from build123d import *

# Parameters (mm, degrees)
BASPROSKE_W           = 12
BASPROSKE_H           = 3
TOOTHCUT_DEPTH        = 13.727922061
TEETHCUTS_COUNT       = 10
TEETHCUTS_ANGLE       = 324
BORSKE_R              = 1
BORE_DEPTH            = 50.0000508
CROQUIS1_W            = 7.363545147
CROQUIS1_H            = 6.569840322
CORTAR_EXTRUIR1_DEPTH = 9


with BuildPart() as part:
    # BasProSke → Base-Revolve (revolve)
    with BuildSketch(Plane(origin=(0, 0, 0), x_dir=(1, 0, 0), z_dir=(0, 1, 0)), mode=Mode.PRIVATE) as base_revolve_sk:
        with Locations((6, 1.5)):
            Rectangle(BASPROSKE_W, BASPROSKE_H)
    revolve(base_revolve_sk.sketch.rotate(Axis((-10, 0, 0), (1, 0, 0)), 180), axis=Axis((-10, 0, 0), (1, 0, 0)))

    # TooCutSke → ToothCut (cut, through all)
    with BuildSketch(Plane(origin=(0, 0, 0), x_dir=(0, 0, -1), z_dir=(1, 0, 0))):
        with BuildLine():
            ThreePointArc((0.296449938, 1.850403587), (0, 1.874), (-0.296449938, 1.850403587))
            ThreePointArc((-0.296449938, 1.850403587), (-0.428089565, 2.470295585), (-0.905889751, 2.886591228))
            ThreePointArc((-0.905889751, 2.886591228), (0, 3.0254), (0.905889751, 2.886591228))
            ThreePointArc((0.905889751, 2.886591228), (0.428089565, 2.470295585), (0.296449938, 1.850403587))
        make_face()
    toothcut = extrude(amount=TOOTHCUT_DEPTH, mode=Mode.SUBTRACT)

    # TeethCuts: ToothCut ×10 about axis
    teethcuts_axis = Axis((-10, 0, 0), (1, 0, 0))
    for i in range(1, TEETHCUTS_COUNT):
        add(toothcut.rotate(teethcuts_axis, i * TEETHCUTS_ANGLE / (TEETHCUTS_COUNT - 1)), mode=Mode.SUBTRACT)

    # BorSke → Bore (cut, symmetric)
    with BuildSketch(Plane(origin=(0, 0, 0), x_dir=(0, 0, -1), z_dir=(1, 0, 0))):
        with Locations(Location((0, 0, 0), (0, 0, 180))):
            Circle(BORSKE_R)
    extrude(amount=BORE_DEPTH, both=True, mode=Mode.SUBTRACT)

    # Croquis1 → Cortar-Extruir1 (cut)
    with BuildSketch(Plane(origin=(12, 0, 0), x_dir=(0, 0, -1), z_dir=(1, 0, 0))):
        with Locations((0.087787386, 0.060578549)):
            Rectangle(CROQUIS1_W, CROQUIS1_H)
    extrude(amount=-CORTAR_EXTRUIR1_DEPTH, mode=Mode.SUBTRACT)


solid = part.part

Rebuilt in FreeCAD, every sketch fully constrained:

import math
import FreeCAD as App
import Part
import Sketcher
from FreeCAD import Vector


def add_polygon(sketch, points):
    """Adds a closed chain of lines whose ends are joined by coincident constraints."""
    first, n = sketch.GeometryCount, len(points)
    for a, b in zip(points, points[1:] + points[:1]):
        sketch.addGeometry(Part.LineSegment(App.Vector(*a, 0), App.Vector(*b, 0)), False)
    for i in range(n):
        sketch.addConstraint(Sketcher.Constraint("Coincident", first + i, 2, first + (i + 1) % n, 1))

doc = App.newDocument("Part")
body = doc.addObject("PartDesign::Body", "Body")

sketch1 = body.newObject("Sketcher::SketchObject", "Sketch")
sketch1.AttachmentSupport = (doc.getObject("XZ_Plane"), [""])
sketch1.MapMode = "FlatFace"
add_polygon(sketch1, [(0, -3), (0, 0), (12, 0), (12, -3)])
sketch1.addConstraint(Sketcher.Constraint("Vertical", 0))
sketch1.addConstraint(Sketcher.Constraint("Horizontal", 1))
sketch1.addConstraint(Sketcher.Constraint("Vertical", 2))
sketch1.addConstraint(Sketcher.Constraint("Horizontal", 3))
sketch1.addConstraint(Sketcher.Constraint("Coincident", 0, 2, -1, 1))
sketch1.addConstraint(Sketcher.Constraint("DistanceX", 1, 1, 1, 2, 12.0))
sketch1.addConstraint(Sketcher.Constraint("DistanceY", 0, 1, 0, 2, 3.0))
revolution = body.newObject("PartDesign::Revolution", "Revolution")
revolution.Profile = sketch1
revolution.ReferenceAxis = (sketch1, ["H_Axis"])
revolution.Angle = 360

sketch2 = body.newObject("Sketcher::SketchObject", "Sketch001")
sketch2.AttachmentSupport = (doc.getObject("YZ_Plane"), [""])
sketch2.MapMode = "FlatFace"
sketch2.addGeometry(Part.ArcOfCircle(Part.Circle(Vector(0, 0, 0), Vector(0, 0, 1), 1.874), math.radians(-9.101911), math.radians(9.101911)), False)
sketch2.addGeometry(Part.ArcOfCircle(Part.Circle(Vector(1.963326, -1.290054, 0), Vector(0, 0, 1), 1), math.radians(22.591848), math.radians(96.483827)), False)
sketch2.addGeometry(Part.ArcOfCircle(Part.Circle(Vector(0, 0, 0), Vector(0, 0, 1), 3.0254), math.radians(-17.423256), math.radians(17.423256)), False)
sketch2.addGeometry(Part.ArcOfCircle(Part.Circle(Vector(1.963326, 1.290054, 0), Vector(0, 0, 1), 1), math.radians(-96.483827), math.radians(-22.591848)), False)
sketch2.addConstraint(Sketcher.Constraint("Coincident", 0, 1, 1, 2))
sketch2.addConstraint(Sketcher.Constraint("Coincident", 1, 1, 2, 1))
sketch2.addConstraint(Sketcher.Constraint("Coincident", 2, 2, 3, 2))
sketch2.addConstraint(Sketcher.Constraint("Coincident", 3, 1, 0, 2))
sketch2.addConstraint(Sketcher.Constraint("Coincident", 0, 3, -1, 1))
sketch2.addConstraint(Sketcher.Constraint("Coincident", 2, 3, -1, 1))
sketch2.addConstraint(Sketcher.Constraint("Equal", 1, 3))
sketch2.addConstraint(Sketcher.Constraint("Symmetric", 1, 3, 3, 3, -1))
sketch2.addConstraint(Sketcher.Constraint("Radius", 1, 1.0))
sketch2.addConstraint(Sketcher.Constraint("Radius", 0, 1.874))
sketch2.addConstraint(Sketcher.Constraint("Radius", 2, 3.0254))
sketch2.addConstraint(Sketcher.Constraint("DistanceY", 0, 1, 3, 1, 0.5929))
sketch2.addConstraint(Sketcher.Constraint("DistanceX", -1, 1, 1, 1, 2.886591))
pocket1 = body.newObject("PartDesign::Pocket", "Pocket")
pocket1.Profile = sketch2
pocket1.Type = "ThroughAll"
pocket1.Reversed = True
doc.recompute()

polarpattern = body.newObject("PartDesign::PolarPattern", "PolarPattern")
polarpattern.Originals = [pocket1]
polarpattern.Axis = (doc.getObject("X_Axis"), [""])
polarpattern.Angle = 360
polarpattern.Occurrences = 10
body.Tip = polarpattern

sketch3 = body.newObject("Sketcher::SketchObject", "Sketch002")
sketch3.AttachmentSupport = (doc.getObject("YZ_Plane"), [""])
sketch3.MapMode = "FlatFace"
sketch3.addGeometry(Part.Circle(Vector(0, 0, 0), Vector(0, 0, 1), 1), False)
sketch3.addConstraint(Sketcher.Constraint("Coincident", 0, 3, -1, 1))
sketch3.addConstraint(Sketcher.Constraint("Diameter", 0, 2.0))
pocket2 = body.newObject("PartDesign::Pocket", "Pocket001")
pocket2.Profile = sketch3
pocket2.Length = 100.000102
pocket2.Midplane = True

sketch4 = body.newObject("Sketcher::SketchObject", "Sketch003")
sketch4.AttachmentSupport = (doc.getObject("YZ_Plane"), [""])
sketch4.MapMode = "FlatFace"
sketch4.AttachmentOffset = App.Placement(Vector(0, 0, 12), App.Rotation())
add_polygon(sketch4, [(3.345499, 3.593985), (-3.224342, 3.593985), (-3.224342, -3.76956), (3.345499, -3.76956)])
sketch4.addConstraint(Sketcher.Constraint("Horizontal", 0))
sketch4.addConstraint(Sketcher.Constraint("Vertical", 1))
sketch4.addConstraint(Sketcher.Constraint("Horizontal", 2))
sketch4.addConstraint(Sketcher.Constraint("Vertical", 3))
sketch4.addConstraint(Sketcher.Constraint("DistanceX", 0, 2, 0, 1, 6.56984))
sketch4.addConstraint(Sketcher.Constraint("DistanceX", -1, 1, 2, 2, 3.345499))
sketch4.addConstraint(Sketcher.Constraint("DistanceY", 1, 2, 1, 1, 7.363545))
sketch4.addConstraint(Sketcher.Constraint("DistanceY", 1, 2, -1, 1, 3.76956))
pocket3 = body.newObject("PartDesign::Pocket", "Pocket002")
pocket3.Profile = sketch4
pocket3.Length = 9

doc.recompute()
